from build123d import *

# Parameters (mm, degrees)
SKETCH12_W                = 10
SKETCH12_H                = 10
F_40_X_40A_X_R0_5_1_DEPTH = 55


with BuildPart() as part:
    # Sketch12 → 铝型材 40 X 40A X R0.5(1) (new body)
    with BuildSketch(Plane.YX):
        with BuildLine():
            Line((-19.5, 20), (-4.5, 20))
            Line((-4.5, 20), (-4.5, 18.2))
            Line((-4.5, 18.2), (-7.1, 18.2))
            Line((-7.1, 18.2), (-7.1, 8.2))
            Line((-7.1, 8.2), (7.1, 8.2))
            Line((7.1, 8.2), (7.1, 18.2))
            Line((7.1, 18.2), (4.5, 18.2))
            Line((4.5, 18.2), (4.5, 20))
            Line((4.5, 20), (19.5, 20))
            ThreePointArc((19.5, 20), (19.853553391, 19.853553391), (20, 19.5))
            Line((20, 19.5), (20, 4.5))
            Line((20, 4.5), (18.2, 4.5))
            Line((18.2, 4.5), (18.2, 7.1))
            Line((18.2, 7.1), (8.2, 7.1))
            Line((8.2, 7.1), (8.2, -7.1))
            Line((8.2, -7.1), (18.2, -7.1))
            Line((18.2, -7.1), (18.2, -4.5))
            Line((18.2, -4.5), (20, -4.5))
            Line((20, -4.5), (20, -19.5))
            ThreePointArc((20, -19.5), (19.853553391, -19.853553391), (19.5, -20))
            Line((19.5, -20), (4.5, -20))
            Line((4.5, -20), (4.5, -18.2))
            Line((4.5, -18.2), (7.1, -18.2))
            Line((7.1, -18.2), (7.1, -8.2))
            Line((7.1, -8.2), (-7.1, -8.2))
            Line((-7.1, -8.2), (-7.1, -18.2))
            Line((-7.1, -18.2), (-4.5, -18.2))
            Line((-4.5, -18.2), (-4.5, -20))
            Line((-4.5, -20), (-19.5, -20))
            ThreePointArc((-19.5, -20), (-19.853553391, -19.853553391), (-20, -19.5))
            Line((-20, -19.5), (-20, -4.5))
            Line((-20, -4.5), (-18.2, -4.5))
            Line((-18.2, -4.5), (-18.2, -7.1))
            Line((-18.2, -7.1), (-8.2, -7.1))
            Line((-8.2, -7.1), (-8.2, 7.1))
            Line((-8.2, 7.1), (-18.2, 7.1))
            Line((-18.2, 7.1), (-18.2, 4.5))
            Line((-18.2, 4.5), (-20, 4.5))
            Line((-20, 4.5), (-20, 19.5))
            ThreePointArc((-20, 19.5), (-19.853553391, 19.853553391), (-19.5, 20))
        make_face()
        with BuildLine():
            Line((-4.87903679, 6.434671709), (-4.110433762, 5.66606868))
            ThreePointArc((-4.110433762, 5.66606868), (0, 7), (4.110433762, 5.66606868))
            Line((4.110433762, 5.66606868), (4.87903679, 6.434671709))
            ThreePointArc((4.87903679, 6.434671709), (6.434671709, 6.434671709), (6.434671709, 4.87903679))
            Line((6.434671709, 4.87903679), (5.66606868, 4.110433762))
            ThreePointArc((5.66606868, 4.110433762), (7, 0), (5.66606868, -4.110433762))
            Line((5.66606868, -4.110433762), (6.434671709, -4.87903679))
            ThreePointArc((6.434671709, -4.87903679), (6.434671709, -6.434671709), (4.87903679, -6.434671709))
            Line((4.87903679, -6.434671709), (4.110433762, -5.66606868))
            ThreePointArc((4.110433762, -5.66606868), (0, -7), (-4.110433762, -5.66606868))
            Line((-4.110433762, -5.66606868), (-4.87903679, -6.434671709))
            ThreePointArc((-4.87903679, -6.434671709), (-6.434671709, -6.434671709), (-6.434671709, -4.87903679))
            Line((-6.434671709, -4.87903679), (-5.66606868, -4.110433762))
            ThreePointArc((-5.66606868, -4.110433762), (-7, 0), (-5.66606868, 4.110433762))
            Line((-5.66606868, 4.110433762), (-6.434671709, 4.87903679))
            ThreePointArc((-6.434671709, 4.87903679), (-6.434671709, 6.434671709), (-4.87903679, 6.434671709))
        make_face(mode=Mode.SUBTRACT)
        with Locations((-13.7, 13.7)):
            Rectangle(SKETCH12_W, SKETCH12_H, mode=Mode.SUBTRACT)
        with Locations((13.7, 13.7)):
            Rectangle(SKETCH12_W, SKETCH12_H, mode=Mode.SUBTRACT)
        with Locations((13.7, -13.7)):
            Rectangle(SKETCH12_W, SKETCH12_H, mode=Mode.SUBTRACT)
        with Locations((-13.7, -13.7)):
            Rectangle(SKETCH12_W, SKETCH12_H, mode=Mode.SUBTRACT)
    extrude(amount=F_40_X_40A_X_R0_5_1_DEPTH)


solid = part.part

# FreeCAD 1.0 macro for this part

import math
import FreeCAD as App
import Part
import Sketcher

doc = App.newDocument("Part")
params = doc.addObject("Spreadsheet::Sheet", "Params")
for row, (alias, value) in enumerate([
    ("sketch1_radius", "7 mm"),
    ("sketch1_radius2", "0.5 mm"),
    ("sketch1_radius3", "1.1 mm"),
    ("sketch1_width", "15 mm"),
    ("sketch1_width2", "10 mm"),
    ("pad1_length", "55 mm"),
], start=1):
    params.set(f"A{row}", alias)
    params.set(f"B{row}", "=" + value)
    params.setAlias(f"B{row}", alias)

body = doc.addObject("PartDesign::Body", "Body")

# Sketch on XY plane
sketch1 = body.newObject("Sketcher::SketchObject", "Sketch")
sketch1.AttachmentSupport = (doc.getObject("XY_Plane"), [""])
sketch1.MapMode = "FlatFace"
sketch1.addGeometry([
    Part.LineSegment(App.Vector(20, -4.5, 0), App.Vector(20, -19.5, 0)),  # 0
    Part.ArcOfCircle(Part.Circle(App.Vector(19.5, -19.5, 0), App.Vector(0, 0, 1), 0.5), math.radians(-90), math.radians(0)),  # 1
    Part.LineSegment(App.Vector(19.5, -20, 0), App.Vector(4.5, -20, 0)),  # 2
    Part.LineSegment(App.Vector(4.5, -20, 0), App.Vector(4.5, -18.2, 0)),  # 3
    Part.LineSegment(App.Vector(4.5, -18.2, 0), App.Vector(7.1, -18.2, 0)),  # 4
    Part.LineSegment(App.Vector(7.1, -18.2, 0), App.Vector(7.1, -8.2, 0)),  # 5
    Part.LineSegment(App.Vector(7.1, -8.2, 0), App.Vector(-7.1, -8.2, 0)),  # 6
    Part.LineSegment(App.Vector(-7.1, -8.2, 0), App.Vector(-7.1, -18.2, 0)),  # 7
    Part.LineSegment(App.Vector(-7.1, -18.2, 0), App.Vector(-4.5, -18.2, 0)),  # 8
    Part.LineSegment(App.Vector(-4.5, -18.2, 0), App.Vector(-4.5, -20, 0)),  # 9
    Part.LineSegment(App.Vector(-4.5, -20, 0), App.Vector(-19.5, -20, 0)),  # 10
    Part.ArcOfCircle(Part.Circle(App.Vector(-19.5, -19.5, 0), App.Vector(0, 0, 1), 0.5), math.radians(180), math.radians(270)),  # 11
    Part.LineSegment(App.Vector(-20, -19.5, 0), App.Vector(-20, -4.5, 0)),  # 12
    Part.LineSegment(App.Vector(-20, -4.5, 0), App.Vector(-18.2, -4.5, 0)),  # 13
    Part.LineSegment(App.Vector(-18.2, -4.5, 0), App.Vector(-18.2, -7.1, 0)),  # 14
    Part.LineSegment(App.Vector(-18.2, -7.1, 0), App.Vector(-8.2, -7.1, 0)),  # 15
    Part.LineSegment(App.Vector(-8.2, -7.1, 0), App.Vector(-8.2, 7.1, 0)),  # 16
    Part.LineSegment(App.Vector(-8.2, 7.1, 0), App.Vector(-18.2, 7.1, 0)),  # 17
    Part.LineSegment(App.Vector(-18.2, 7.1, 0), App.Vector(-18.2, 4.5, 0)),  # 18
    Part.LineSegment(App.Vector(-18.2, 4.5, 0), App.Vector(-20, 4.5, 0)),  # 19
    Part.LineSegment(App.Vector(-20, 4.5, 0), App.Vector(-20, 19.5, 0)),  # 20
    Part.ArcOfCircle(Part.Circle(App.Vector(-19.5, 19.5, 0), App.Vector(0, 0, 1), 0.5), math.radians(90), math.radians(180)),  # 21
    Part.LineSegment(App.Vector(-19.5, 20, 0), App.Vector(-4.5, 20, 0)),  # 22
    Part.LineSegment(App.Vector(-4.5, 20, 0), App.Vector(-4.5, 18.2, 0)),  # 23
    Part.LineSegment(App.Vector(-4.5, 18.2, 0), App.Vector(-7.1, 18.2, 0)),  # 24
    Part.LineSegment(App.Vector(-7.1, 18.2, 0), App.Vector(-7.1, 8.2, 0)),  # 25
    Part.LineSegment(App.Vector(-7.1, 8.2, 0), App.Vector(7.1, 8.2, 0)),  # 26
    Part.LineSegment(App.Vector(7.1, 8.2, 0), App.Vector(7.1, 18.2, 0)),  # 27
    Part.LineSegment(App.Vector(7.1, 18.2, 0), App.Vector(4.5, 18.2, 0)),  # 28
    Part.LineSegment(App.Vector(4.5, 18.2, 0), App.Vector(4.5, 20, 0)),  # 29
    Part.LineSegment(App.Vector(4.5, 20, 0), App.Vector(19.5, 20, 0)),  # 30
    Part.ArcOfCircle(Part.Circle(App.Vector(19.5, 19.5, 0), App.Vector(0, 0, 1), 0.5), math.radians(0), math.radians(90)),  # 31
    Part.LineSegment(App.Vector(20, 19.5, 0), App.Vector(20, 4.5, 0)),  # 32
    Part.LineSegment(App.Vector(20, 4.5, 0), App.Vector(18.2, 4.5, 0)),  # 33
    Part.LineSegment(App.Vector(18.2, 4.5, 0), App.Vector(18.2, 7.1, 0)),  # 34
    Part.LineSegment(App.Vector(18.2, 7.1, 0), App.Vector(8.2, 7.1, 0)),  # 35
    Part.LineSegment(App.Vector(8.2, 7.1, 0), App.Vector(8.2, -7.1, 0)),  # 36
    Part.LineSegment(App.Vector(8.2, -7.1, 0), App.Vector(18.2, -7.1, 0)),  # 37
    Part.LineSegment(App.Vector(18.2, -7.1, 0), App.Vector(18.2, -4.5, 0)),  # 38
    Part.LineSegment(App.Vector(18.2, -4.5, 0), App.Vector(20, -4.5, 0)),  # 39
    Part.LineSegment(App.Vector(-18.7, 8.7, 0), App.Vector(-8.7, 8.7, 0)),  # 40
    Part.LineSegment(App.Vector(-8.7, 8.7, 0), App.Vector(-8.7, 18.7, 0)),  # 41
    Part.LineSegment(App.Vector(-8.7, 18.7, 0), App.Vector(-18.7, 18.7, 0)),  # 42
    Part.LineSegment(App.Vector(-18.7, 18.7, 0), App.Vector(-18.7, 8.7, 0)),  # 43
    Part.LineSegment(App.Vector(6.434672, -4.879037, 0), App.Vector(5.666069, -4.110434, 0)),  # 44
    Part.ArcOfCircle(Part.Circle(App.Vector(0, 0, 0), App.Vector(0, 0, 1), 7), math.radians(-35.958904), math.radians(35.958904)),  # 45
    Part.LineSegment(App.Vector(5.666069, 4.110434, 0), App.Vector(6.434672, 4.879037, 0)),  # 46
    Part.ArcOfCircle(Part.Circle(App.Vector(5.656854, 5.656854, 0), App.Vector(0, 0, 1), 1.1), math.radians(-45), math.radians(135)),  # 47
    Part.LineSegment(App.Vector(4.879037, 6.434672, 0), App.Vector(4.110434, 5.666069, 0)),  # 48
    Part.ArcOfCircle(Part.Circle(App.Vector(0, 0, 0), App.Vector(0, 0, 1), 7), math.radians(54.041096), math.radians(125.958904)),  # 49
    Part.LineSegment(App.Vector(-4.110434, 5.666069, 0), App.Vector(-4.879037, 6.434672, 0)),  # 50
    Part.ArcOfCircle(Part.Circle(App.Vector(-5.656854, 5.656854, 0), App.Vector(0, 0, 1), 1.1), math.radians(45), math.radians(225)),  # 51
    Part.LineSegment(App.Vector(-6.434672, 4.879037, 0), App.Vector(-5.666069, 4.110434, 0)),  # 52
    Part.ArcOfCircle(Part.Circle(App.Vector(0, 0, 0), App.Vector(0, 0, 1), 7), math.radians(144.041096), math.radians(215.958904)),  # 53
    Part.LineSegment(App.Vector(-5.666069, -4.110434, 0), App.Vector(-6.434672, -4.879037, 0)),  # 54
    Part.ArcOfCircle(Part.Circle(App.Vector(-5.656854, -5.656854, 0), App.Vector(0, 0, 1), 1.1), math.radians(135), math.radians(315)),  # 55
    Part.LineSegment(App.Vector(-4.879037, -6.434672, 0), App.Vector(-4.110434, -5.666069, 0)),  # 56
    Part.ArcOfCircle(Part.Circle(App.Vector(0, 0, 0), App.Vector(0, 0, 1), 7), math.radians(-125.958904), math.radians(-54.041096)),  # 57
    Part.LineSegment(App.Vector(4.110434, -5.666069, 0), App.Vector(4.879037, -6.434672, 0)),  # 58
    Part.ArcOfCircle(Part.Circle(App.Vector(5.656854, -5.656854, 0), App.Vector(0, 0, 1), 1.1), math.radians(-135), math.radians(45)),  # 59
    Part.LineSegment(App.Vector(-18.7, -18.7, 0), App.Vector(-8.7, -18.7, 0)),  # 60
    Part.LineSegment(App.Vector(-8.7, -18.7, 0), App.Vector(-8.7, -8.7, 0)),  # 61
    Part.LineSegment(App.Vector(-8.7, -8.7, 0), App.Vector(-18.7, -8.7, 0)),  # 62
    Part.LineSegment(App.Vector(-18.7, -8.7, 0), App.Vector(-18.7, -18.7, 0)),  # 63
    Part.LineSegment(App.Vector(8.7, 8.7, 0), App.Vector(18.7, 8.7, 0)),  # 64
    Part.LineSegment(App.Vector(18.7, 8.7, 0), App.Vector(18.7, 18.7, 0)),  # 65
    Part.LineSegment(App.Vector(18.7, 18.7, 0), App.Vector(8.7, 18.7, 0)),  # 66
    Part.LineSegment(App.Vector(8.7, 18.7, 0), App.Vector(8.7, 8.7, 0)),  # 67
    Part.LineSegment(App.Vector(8.7, -18.7, 0), App.Vector(18.7, -18.7, 0)),  # 68
    Part.LineSegment(App.Vector(18.7, -18.7, 0), App.Vector(18.7, -8.7, 0)),  # 69
    Part.LineSegment(App.Vector(18.7, -8.7, 0), App.Vector(8.7, -8.7, 0)),  # 70
    Part.LineSegment(App.Vector(8.7, -8.7, 0), App.Vector(8.7, -18.7, 0)),  # 71
], False)
sketch1.addConstraint([
    Sketcher.Constraint("Tangent", 0, 2, 1, 2),
    Sketcher.Constraint("Tangent", 1, 1, 2, 1),
    Sketcher.Constraint("Coincident", 2, 2, 3, 1),
    Sketcher.Constraint("Coincident", 3, 2, 4, 1),
    Sketcher.Constraint("Coincident", 4, 2, 5, 1),
    Sketcher.Constraint("Coincident", 5, 2, 6, 1),
    Sketcher.Constraint("Coincident", 6, 2, 7, 1),
    Sketcher.Constraint("Coincident", 7, 2, 8, 1),
    Sketcher.Constraint("Coincident", 8, 2, 9, 1),
    Sketcher.Constraint("Coincident", 9, 2, 10, 1),
    Sketcher.Constraint("Tangent", 10, 2, 11, 2),
    Sketcher.Constraint("Tangent", 11, 1, 12, 1),
    Sketcher.Constraint("Coincident", 12, 2, 13, 1),
    Sketcher.Constraint("Coincident", 13, 2, 14, 1),
    Sketcher.Constraint("Coincident", 14, 2, 15, 1),
    Sketcher.Constraint("Coincident", 15, 2, 16, 1),
    Sketcher.Constraint("Coincident", 16, 2, 17, 1),
    Sketcher.Constraint("Coincident", 17, 2, 18, 1),
    Sketcher.Constraint("Coincident", 18, 2, 19, 1),
    Sketcher.Constraint("Coincident", 19, 2, 20, 1),
    Sketcher.Constraint("Tangent", 20, 2, 21, 2),
    Sketcher.Constraint("Tangent", 21, 1, 22, 1),
    Sketcher.Constraint("Coincident", 22, 2, 23, 1),
    Sketcher.Constraint("Coincident", 23, 2, 24, 1),
    Sketcher.Constraint("Coincident", 24, 2, 25, 1),
    Sketcher.Constraint("Coincident", 25, 2, 26, 1),
    Sketcher.Constraint("Coincident", 26, 2, 27, 1),
    Sketcher.Constraint("Coincident", 27, 2, 28, 1),
    Sketcher.Constraint("Coincident", 28, 2, 29, 1),
    Sketcher.Constraint("Coincident", 29, 2, 30, 1),
    Sketcher.Constraint("Tangent", 30, 2, 31, 2),
    Sketcher.Constraint("Tangent", 31, 1, 32, 1),
    Sketcher.Constraint("Coincident", 32, 2, 33, 1),
    Sketcher.Constraint("Coincident", 33, 2, 34, 1),
    Sketcher.Constraint("Coincident", 34, 2, 35, 1),
    Sketcher.Constraint("Coincident", 35, 2, 36, 1),
    Sketcher.Constraint("Coincident", 36, 2, 37, 1),
    Sketcher.Constraint("Coincident", 37, 2, 38, 1),
    Sketcher.Constraint("Coincident", 38, 2, 39, 1),
    Sketcher.Constraint("Coincident", 39, 2, 0, 1),
    Sketcher.Constraint("Coincident", 40, 2, 41, 1),
    Sketcher.Constraint("Coincident", 41, 2, 42, 1),
    Sketcher.Constraint("Coincident", 42, 2, 43, 1),
    Sketcher.Constraint("Coincident", 43, 2, 40, 1),
    Sketcher.Constraint("Coincident", 44, 2, 45, 1),
    Sketcher.Constraint("Coincident", 45, 2, 46, 1),
    Sketcher.Constraint("Tangent", 46, 2, 47, 1),
    Sketcher.Constraint("Tangent", 47, 2, 48, 1),
    Sketcher.Constraint("Coincident", 48, 2, 49, 1),
    Sketcher.Constraint("Coincident", 49, 2, 50, 1),
    Sketcher.Constraint("Tangent", 50, 2, 51, 1),
    Sketcher.Constraint("Tangent", 51, 2, 52, 1),
    Sketcher.Constraint("Coincident", 52, 2, 53, 1),
    Sketcher.Constraint("Coincident", 53, 2, 54, 1),
    Sketcher.Constraint("Tangent", 54, 2, 55, 1),
    Sketcher.Constraint("Tangent", 55, 2, 56, 1),
    Sketcher.Constraint("Coincident", 56, 2, 57, 1),
    Sketcher.Constraint("Coincident", 57, 2, 58, 1),
    Sketcher.Constraint("Tangent", 58, 2, 59, 1),
    Sketcher.Constraint("Tangent", 59, 2, 44, 1),
    Sketcher.Constraint("Coincident", 60, 2, 61, 1),
    Sketcher.Constraint("Coincident", 61, 2, 62, 1),
    Sketcher.Constraint("Coincident", 62, 2, 63, 1),
    Sketcher.Constraint("Coincident", 63, 2, 60, 1),
    Sketcher.Constraint("Coincident", 64, 2, 65, 1),
    Sketcher.Constraint("Coincident", 65, 2, 66, 1),
    Sketcher.Constraint("Coincident", 66, 2, 67, 1),
    Sketcher.Constraint("Coincident", 67, 2, 64, 1),
    Sketcher.Constraint("Coincident", 68, 2, 69, 1),
    Sketcher.Constraint("Coincident", 69, 2, 70, 1),
    Sketcher.Constraint("Coincident", 70, 2, 71, 1),
    Sketcher.Constraint("Coincident", 71, 2, 68, 1),
    Sketcher.Constraint("Vertical", 0),
    Sketcher.Constraint("Horizontal", 2),
    Sketcher.Constraint("Vertical", 3),
    Sketcher.Constraint("Horizontal", 4),
    Sketcher.Constraint("Vertical", 5),
    Sketcher.Constraint("Horizontal", 6),
    Sketcher.Constraint("Vertical", 7),
    Sketcher.Constraint("Horizontal", 8),
    Sketcher.Constraint("Vertical", 9),
    Sketcher.Constraint("Horizontal", 10),
    Sketcher.Constraint("Vertical", 12),
    Sketcher.Constraint("Horizontal", 13),
    Sketcher.Constraint("Vertical", 14),
    Sketcher.Constraint("Horizontal", 15),
    Sketcher.Constraint("Vertical", 16),
    Sketcher.Constraint("Horizontal", 17),
    Sketcher.Constraint("Vertical", 18),
    Sketcher.Constraint("Horizontal", 19),
    Sketcher.Constraint("Vertical", 20),
    Sketcher.Constraint("Horizontal", 22),
    Sketcher.Constraint("Vertical", 23),
    Sketcher.Constraint("Horizontal", 24),
    Sketcher.Constraint("Vertical", 25),
    Sketcher.Constraint("Horizontal", 26),
    Sketcher.Constraint("Vertical", 27),
    Sketcher.Constraint("Horizontal", 28),
    Sketcher.Constraint("Vertical", 29),
    Sketcher.Constraint("Horizontal", 30),
    Sketcher.Constraint("Vertical", 32),
    Sketcher.Constraint("Horizontal", 33),
    Sketcher.Constraint("Vertical", 34),
    Sketcher.Constraint("Horizontal", 35),
    Sketcher.Constraint("Vertical", 36),
    Sketcher.Constraint("Horizontal", 37),
    Sketcher.Constraint("Vertical", 38),
    Sketcher.Constraint("Horizontal", 39),
    Sketcher.Constraint("Horizontal", 40),
    Sketcher.Constraint("Vertical", 41),
    Sketcher.Constraint("Horizontal", 42),
    Sketcher.Constraint("Vertical", 43),
    Sketcher.Constraint("Horizontal", 60),
    Sketcher.Constraint("Vertical", 61),
    Sketcher.Constraint("Horizontal", 62),
    Sketcher.Constraint("Vertical", 63),
    Sketcher.Constraint("Horizontal", 64),
    Sketcher.Constraint("Vertical", 65),
    Sketcher.Constraint("Horizontal", 66),
    Sketcher.Constraint("Vertical", 67),
    Sketcher.Constraint("Horizontal", 68),
    Sketcher.Constraint("Vertical", 69),
    Sketcher.Constraint("Horizontal", 70),
    Sketcher.Constraint("Vertical", 71),
    Sketcher.Constraint("Coincident", 45, 3, -1, 1),
    Sketcher.Constraint("Coincident", 49, 3, -1, 1),
    Sketcher.Constraint("Coincident", 53, 3, -1, 1),
    Sketcher.Constraint("Coincident", 57, 3, -1, 1),
    Sketcher.Constraint("Equal", 1, 11),
    Sketcher.Constraint("Equal", 11, 21),
    Sketcher.Constraint("Equal", 21, 31),
    Sketcher.Constraint("Equal", 45, 49),
    Sketcher.Constraint("Equal", 47, 51),
    Sketcher.Constraint("Equal", 49, 53),
    Sketcher.Constraint("Equal", 51, 55),
    Sketcher.Constraint("Equal", 53, 57),
    Sketcher.Constraint("Equal", 55, 59),
    Sketcher.Constraint("Symmetric", 1, 3, 21, 3, -1, 1),
    Sketcher.Constraint("Symmetric", 11, 3, 31, 3, -1, 1),
    Sketcher.Constraint("Symmetric", 47, 3, 55, 3, -1, 1),
    Sketcher.Constraint("Symmetric", 51, 3, 59, 3, -1, 1),
    Sketcher.Constraint("Symmetric", 3, 2, 23, 2, -1, 1),
    Sketcher.Constraint("Symmetric", 5, 2, 25, 2, -1, 1),
    Sketcher.Constraint("Symmetric", 7, 2, 27, 2, -1, 1),
    Sketcher.Constraint("Symmetric", 13, 2, 33, 2, -1, 1),
    Sketcher.Constraint("Symmetric", 15, 2, 35, 2, -1, 1),
    Sketcher.Constraint("Symmetric", 17, 2, 37, 2, -1, 1),
    Sketcher.Constraint("Symmetric", 62, 2, 64, 2, -1, 1),
    Sketcher.Constraint("Symmetric", 60, 2, 66, 2, -1, 1),
    Sketcher.Constraint("Symmetric", 42, 2, 68, 2, -1, 1),
    Sketcher.Constraint("Symmetric", 40, 2, 70, 2, -1, 1),
    Sketcher.Constraint("Symmetric", 1, 3, 11, 3, -2),
    Sketcher.Constraint("Symmetric", 47, 3, 51, 3, -2),
    Sketcher.Constraint("Symmetric", 4, 2, 7, 2, -2),
    Sketcher.Constraint("Symmetric", 18, 2, 33, 2, -2),
    Sketcher.Constraint("Symmetric", 43, 2, 64, 2, -2),
    Sketcher.Constraint("Symmetric", 41, 2, 66, 2, -2),
    Sketcher.Constraint("Perpendicular", 44, 46),
    Sketcher.Constraint("Parallel", 46, 48),
    Sketcher.Constraint("Perpendicular", 48, 50),
    Sketcher.Constraint("Parallel", 50, 52),
    Sketcher.Constraint("Perpendicular", 52, 54),
    Sketcher.Constraint("Parallel", 54, 56),
    Sketcher.Constraint("Perpendicular", 56, 58),
    Sketcher.Constraint("Horizontal", 17, 2, 34, 2),
    Sketcher.Constraint("Horizontal", 13, 2, 38, 2),
    Sketcher.Constraint("Horizontal", 48, 2, 49, 2),
    Sketcher.Constraint("Vertical", 9, 2, 22, 2),
    Sketcher.Constraint("Vertical", 3, 2, 28, 2),
    Sketcher.Constraint("Equal", 37, 40),
    Sketcher.Constraint("Equal", 30, 0),
    Sketcher.Constraint("Equal", 39, 3),
    Sketcher.Constraint("Equal", 70, 5),
    Sketcher.Constraint("Equal", 28, 14),
    Sketcher.Constraint("Equal", 26, 16),
    Sketcher.Constraint("Equal", 27, 41),
    Sketcher.Constraint("Equal", 46, 48),
    Sketcher.Constraint("Radius", 45, 7.0),
    Sketcher.Constraint("Radius", 1, 0.5),
    Sketcher.Constraint("Radius", 47, 1.1),
    Sketcher.Constraint("DistanceX", 2, 2, 2, 1, 15.0),
    Sketcher.Constraint("DistanceX", 15, 1, 15, 2, 10.0),
    Sketcher.Constraint("DistanceX", 4, 1, 4, 2, 2.6),
    Sketcher.Constraint("DistanceX", 6, 2, 6, 1, 14.2),
    Sketcher.Constraint("DistanceX", 13, 1, 13, 2, 1.8),
    Sketcher.Constraint("DistanceX", 40, 2, -1, 1, 8.7),
    Sketcher.Constraint("DistanceY", -1, 1, 40, 2, 8.7),
    Sketcher.Constraint("Distance", 44, 1.086969),
])
sketch1.setExpression("Constraints[177]", "Params.sketch1_radius")
sketch1.setExpression("Constraints[178]", "Params.sketch1_radius2")
sketch1.setExpression("Constraints[179]", "Params.sketch1_radius3")
sketch1.setExpression("Constraints[180]", "Params.sketch1_width")
sketch1.setExpression("Constraints[181]", "Params.sketch1_width2")
pad1 = body.newObject("PartDesign::Pad", "Pad")
pad1.Profile = sketch1
pad1.setExpression("Length", "Params.pad1_length")
pad1.Reversed = True

doc.recompute()
